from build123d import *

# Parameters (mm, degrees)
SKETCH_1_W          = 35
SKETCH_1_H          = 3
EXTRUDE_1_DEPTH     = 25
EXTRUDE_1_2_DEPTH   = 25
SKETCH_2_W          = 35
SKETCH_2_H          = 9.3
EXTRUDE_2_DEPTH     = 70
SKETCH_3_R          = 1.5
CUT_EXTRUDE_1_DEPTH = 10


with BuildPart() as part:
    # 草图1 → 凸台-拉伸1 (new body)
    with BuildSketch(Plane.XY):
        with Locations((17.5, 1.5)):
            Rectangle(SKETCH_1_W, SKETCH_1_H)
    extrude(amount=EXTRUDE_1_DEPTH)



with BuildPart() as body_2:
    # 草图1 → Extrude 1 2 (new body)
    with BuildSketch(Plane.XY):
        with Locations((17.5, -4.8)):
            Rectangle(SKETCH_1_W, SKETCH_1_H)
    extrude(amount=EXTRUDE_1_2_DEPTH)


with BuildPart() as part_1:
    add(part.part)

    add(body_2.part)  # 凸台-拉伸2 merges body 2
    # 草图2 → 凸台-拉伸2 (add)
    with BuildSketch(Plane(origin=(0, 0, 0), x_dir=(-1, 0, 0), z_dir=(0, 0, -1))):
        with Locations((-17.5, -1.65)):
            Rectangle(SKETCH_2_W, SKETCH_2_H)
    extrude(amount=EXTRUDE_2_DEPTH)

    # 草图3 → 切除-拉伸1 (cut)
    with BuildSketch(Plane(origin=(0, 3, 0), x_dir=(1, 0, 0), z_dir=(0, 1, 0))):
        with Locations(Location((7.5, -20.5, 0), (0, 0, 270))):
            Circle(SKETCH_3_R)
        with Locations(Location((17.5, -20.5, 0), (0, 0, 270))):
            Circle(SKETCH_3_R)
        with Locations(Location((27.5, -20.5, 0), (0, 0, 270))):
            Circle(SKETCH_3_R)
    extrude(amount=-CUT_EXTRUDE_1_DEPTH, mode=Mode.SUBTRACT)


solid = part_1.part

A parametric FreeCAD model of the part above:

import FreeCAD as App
import Part
import Sketcher
Q = App.Units.Quantity

doc = App.newDocument("Part")
body = doc.addObject("PartDesign::Body", "Body")

# Sketch on XY plane
sketch1 = body.newObject("Sketcher::SketchObject", "Sketch")
sketch1.AttachmentSupport = (doc.getObject("XY_Plane"), [""])
sketch1.MapMode = "FlatFace"
sketch1.addGeometry([
    Part.LineSegment(App.Vector(0, 3, 0), App.Vector(0, 0, 0)),
    Part.LineSegment(App.Vector(0, 0, 0), App.Vector(35, 0, 0)),
    Part.LineSegment(App.Vector(35, 0, 0), App.Vector(35, 3, 0)),
    Part.LineSegment(App.Vector(35, 3, 0), App.Vector(0, 3, 0)),
], False)
sketch1.addConstraint([
    Sketcher.Constraint("Coincident", 0, 2, 1, 1),
    Sketcher.Constraint("Coincident", 1, 2, 2, 1),
    Sketcher.Constraint("Coincident", 2, 2, 3, 1),
    Sketcher.Constraint("Coincident", 3, 2, 0, 1),
    Sketcher.Constraint("Vertical", 0),
    Sketcher.Constraint("Horizontal", 1),
    Sketcher.Constraint("Vertical", 2),
    Sketcher.Constraint("Horizontal", 3),
    Sketcher.Constraint("Coincident", 0, 2, -1, 1),
    Sketcher.Constraint("DistanceX", 1, 1, 1, 2, Q("35 mm")),
    Sketcher.Constraint("DistanceY", 0, 2, 0, 1, Q("3 mm")),
])
pad1 = body.newObject("PartDesign::Pad", "Pad")
pad1.Profile = sketch1
pad1.Length = 25
body2 = doc.addObject("PartDesign::Body", "Body001")

# Sketch on XY plane
sketch2 = body2.newObject("Sketcher::SketchObject", "Sketch001")
sketch2.AttachmentSupport = (doc.getObject("XY_Plane001"), [""])
sketch2.MapMode = "FlatFace"
sketch2.addGeometry([
    Part.LineSegment(App.Vector(0, -3.3, 0), App.Vector(0, -6.3, 0)),
    Part.LineSegment(App.Vector(0, -6.3, 0), App.Vector(35, -6.3, 0)),
    Part.LineSegment(App.Vector(35, -6.3, 0), App.Vector(35, -3.3, 0)),
    Part.LineSegment(App.Vector(35, -3.3, 0), App.Vector(0, -3.3, 0)),
], False)
sketch2.addConstraint([
    Sketcher.Constraint("Coincident", 0, 2, 1, 1),
    Sketcher.Constraint("Coincident", 1, 2, 2, 1),
    Sketcher.Constraint("Coincident", 2, 2, 3, 1),
    Sketcher.Constraint("Coincident", 3, 2, 0, 1),
    Sketcher.Constraint("Vertical", 0),
    Sketcher.Constraint("Horizontal", 1),
    Sketcher.Constraint("Vertical", 2),
    Sketcher.Constraint("Horizontal", 3),
    Sketcher.Constraint("PointOnObject", 0, 2, -2),
    Sketcher.Constraint("DistanceX", 1, 1, 1, 2, Q("35 mm")),
    Sketcher.Constraint("DistanceY", 0, 2, 0, 1, Q("3 mm")),
    Sketcher.Constraint("DistanceY", 0, 2, -1, 1, Q("6.3 mm")),
])
pad2 = body2.newObject("PartDesign::Pad", "Pad001")
pad2.Profile = sketch2
pad2.Length = 25
body.AllowCompound = True
doc.recompute()

boolean = body.newObject("PartDesign::Boolean", "Boolean")
boolean.Type = "Fuse"
boolean.addObjects([body2])

# Sketch on XY plane
sketch3 = body.newObject("Sketcher::SketchObject", "Sketch002")
sketch3.AttachmentSupport = (doc.getObject("XY_Plane"), [""])
sketch3.MapMode = "FlatFace"
sketch3.addGeometry([
    Part.LineSegment(App.Vector(35, 3, 0), App.Vector(35, -6, 0)),
    Part.LineSegment(App.Vector(35, -6, 0), App.Vector(0, -6, 0)),
    Part.LineSegment(App.Vector(0, -6, 0), App.Vector(0, 3, 0)),
    Part.LineSegment(App.Vector(0, 3, 0), App.Vector(35, 3, 0)),
], False)
sketch3.addConstraint([
    Sketcher.Constraint("Coincident", 0, 2, 1, 1),
    Sketcher.Constraint("Coincident", 1, 2, 2, 1),
    Sketcher.Constraint("Coincident", 2, 2, 3, 1),
    Sketcher.Constraint("Coincident", 3, 2, 0, 1),
    Sketcher.Constraint("Vertical", 0),
    Sketcher.Constraint("Horizontal", 1),
    Sketcher.Constraint("Vertical", 2),
    Sketcher.Constraint("Horizontal", 3),
    Sketcher.Constraint("PointOnObject", 1, 2, -2),
    Sketcher.Constraint("DistanceX", 1, 2, 1, 1, Q("35 mm")),
    Sketcher.Constraint("DistanceY", 0, 2, 0, 1, Q("9.3 mm")),
    Sketcher.Constraint("DistanceY", -1, 1, 2, 2, Q("3 mm")),
])
pad3 = body.newObject("PartDesign::Pad", "Pad002")
pad3.Profile = sketch3
pad3.Length = 70
pad3.Reversed = True

# Sketch on XZ plane
sketch4 = body.newObject("Sketcher::SketchObject", "Sketch003")
sketch4.AttachmentSupport = (doc.getObject("XZ_Plane"), [""])
sketch4.MapMode = "FlatFace"
sketch4.AttachmentOffset = App.Placement(App.Vector(0, 0, -3), App.Rotation())
sketch4.addGeometry([
    Part.Circle(App.Vector(7.5, 20.5, 0), App.Vector(0, 0, 1), 1.5),
    Part.Circle(App.Vector(17.5, 20.5, 0), App.Vector(0, 0, 1), 1.5),
    Part.Circle(App.Vector(27.5, 20.5, 0), App.Vector(0, 0, 1), 1.5),
], False)
sketch4.addConstraint([
    Sketcher.Constraint("Equal", 0, 1),
    Sketcher.Constraint("Equal", 1, 2),
    Sketcher.Constraint("Horizontal", 0, 3, 1, 3),
    Sketcher.Constraint("Horizontal", 1, 3, 2, 3),
    Sketcher.Constraint("Diameter", 0, Q("3 mm")),
    Sketcher.Constraint("DistanceX", 0, 3, 1, 3, Q("10 mm")),
    Sketcher.Constraint("DistanceX", 1, 3, 2, 3, Q("10 mm")),
    Sketcher.Constraint("DistanceX", -1, 1, 0, 3, Q("7.5 mm")),
    Sketcher.Constraint("DistanceY", -1, 1, 0, 3, Q("20.5 mm")),
])
pocket1 = body.newObject("PartDesign::Pocket", "Pocket")
pocket1.Profile = sketch4
pocket1.Length = 10
pocket1.Reversed = True

doc.recompute()
